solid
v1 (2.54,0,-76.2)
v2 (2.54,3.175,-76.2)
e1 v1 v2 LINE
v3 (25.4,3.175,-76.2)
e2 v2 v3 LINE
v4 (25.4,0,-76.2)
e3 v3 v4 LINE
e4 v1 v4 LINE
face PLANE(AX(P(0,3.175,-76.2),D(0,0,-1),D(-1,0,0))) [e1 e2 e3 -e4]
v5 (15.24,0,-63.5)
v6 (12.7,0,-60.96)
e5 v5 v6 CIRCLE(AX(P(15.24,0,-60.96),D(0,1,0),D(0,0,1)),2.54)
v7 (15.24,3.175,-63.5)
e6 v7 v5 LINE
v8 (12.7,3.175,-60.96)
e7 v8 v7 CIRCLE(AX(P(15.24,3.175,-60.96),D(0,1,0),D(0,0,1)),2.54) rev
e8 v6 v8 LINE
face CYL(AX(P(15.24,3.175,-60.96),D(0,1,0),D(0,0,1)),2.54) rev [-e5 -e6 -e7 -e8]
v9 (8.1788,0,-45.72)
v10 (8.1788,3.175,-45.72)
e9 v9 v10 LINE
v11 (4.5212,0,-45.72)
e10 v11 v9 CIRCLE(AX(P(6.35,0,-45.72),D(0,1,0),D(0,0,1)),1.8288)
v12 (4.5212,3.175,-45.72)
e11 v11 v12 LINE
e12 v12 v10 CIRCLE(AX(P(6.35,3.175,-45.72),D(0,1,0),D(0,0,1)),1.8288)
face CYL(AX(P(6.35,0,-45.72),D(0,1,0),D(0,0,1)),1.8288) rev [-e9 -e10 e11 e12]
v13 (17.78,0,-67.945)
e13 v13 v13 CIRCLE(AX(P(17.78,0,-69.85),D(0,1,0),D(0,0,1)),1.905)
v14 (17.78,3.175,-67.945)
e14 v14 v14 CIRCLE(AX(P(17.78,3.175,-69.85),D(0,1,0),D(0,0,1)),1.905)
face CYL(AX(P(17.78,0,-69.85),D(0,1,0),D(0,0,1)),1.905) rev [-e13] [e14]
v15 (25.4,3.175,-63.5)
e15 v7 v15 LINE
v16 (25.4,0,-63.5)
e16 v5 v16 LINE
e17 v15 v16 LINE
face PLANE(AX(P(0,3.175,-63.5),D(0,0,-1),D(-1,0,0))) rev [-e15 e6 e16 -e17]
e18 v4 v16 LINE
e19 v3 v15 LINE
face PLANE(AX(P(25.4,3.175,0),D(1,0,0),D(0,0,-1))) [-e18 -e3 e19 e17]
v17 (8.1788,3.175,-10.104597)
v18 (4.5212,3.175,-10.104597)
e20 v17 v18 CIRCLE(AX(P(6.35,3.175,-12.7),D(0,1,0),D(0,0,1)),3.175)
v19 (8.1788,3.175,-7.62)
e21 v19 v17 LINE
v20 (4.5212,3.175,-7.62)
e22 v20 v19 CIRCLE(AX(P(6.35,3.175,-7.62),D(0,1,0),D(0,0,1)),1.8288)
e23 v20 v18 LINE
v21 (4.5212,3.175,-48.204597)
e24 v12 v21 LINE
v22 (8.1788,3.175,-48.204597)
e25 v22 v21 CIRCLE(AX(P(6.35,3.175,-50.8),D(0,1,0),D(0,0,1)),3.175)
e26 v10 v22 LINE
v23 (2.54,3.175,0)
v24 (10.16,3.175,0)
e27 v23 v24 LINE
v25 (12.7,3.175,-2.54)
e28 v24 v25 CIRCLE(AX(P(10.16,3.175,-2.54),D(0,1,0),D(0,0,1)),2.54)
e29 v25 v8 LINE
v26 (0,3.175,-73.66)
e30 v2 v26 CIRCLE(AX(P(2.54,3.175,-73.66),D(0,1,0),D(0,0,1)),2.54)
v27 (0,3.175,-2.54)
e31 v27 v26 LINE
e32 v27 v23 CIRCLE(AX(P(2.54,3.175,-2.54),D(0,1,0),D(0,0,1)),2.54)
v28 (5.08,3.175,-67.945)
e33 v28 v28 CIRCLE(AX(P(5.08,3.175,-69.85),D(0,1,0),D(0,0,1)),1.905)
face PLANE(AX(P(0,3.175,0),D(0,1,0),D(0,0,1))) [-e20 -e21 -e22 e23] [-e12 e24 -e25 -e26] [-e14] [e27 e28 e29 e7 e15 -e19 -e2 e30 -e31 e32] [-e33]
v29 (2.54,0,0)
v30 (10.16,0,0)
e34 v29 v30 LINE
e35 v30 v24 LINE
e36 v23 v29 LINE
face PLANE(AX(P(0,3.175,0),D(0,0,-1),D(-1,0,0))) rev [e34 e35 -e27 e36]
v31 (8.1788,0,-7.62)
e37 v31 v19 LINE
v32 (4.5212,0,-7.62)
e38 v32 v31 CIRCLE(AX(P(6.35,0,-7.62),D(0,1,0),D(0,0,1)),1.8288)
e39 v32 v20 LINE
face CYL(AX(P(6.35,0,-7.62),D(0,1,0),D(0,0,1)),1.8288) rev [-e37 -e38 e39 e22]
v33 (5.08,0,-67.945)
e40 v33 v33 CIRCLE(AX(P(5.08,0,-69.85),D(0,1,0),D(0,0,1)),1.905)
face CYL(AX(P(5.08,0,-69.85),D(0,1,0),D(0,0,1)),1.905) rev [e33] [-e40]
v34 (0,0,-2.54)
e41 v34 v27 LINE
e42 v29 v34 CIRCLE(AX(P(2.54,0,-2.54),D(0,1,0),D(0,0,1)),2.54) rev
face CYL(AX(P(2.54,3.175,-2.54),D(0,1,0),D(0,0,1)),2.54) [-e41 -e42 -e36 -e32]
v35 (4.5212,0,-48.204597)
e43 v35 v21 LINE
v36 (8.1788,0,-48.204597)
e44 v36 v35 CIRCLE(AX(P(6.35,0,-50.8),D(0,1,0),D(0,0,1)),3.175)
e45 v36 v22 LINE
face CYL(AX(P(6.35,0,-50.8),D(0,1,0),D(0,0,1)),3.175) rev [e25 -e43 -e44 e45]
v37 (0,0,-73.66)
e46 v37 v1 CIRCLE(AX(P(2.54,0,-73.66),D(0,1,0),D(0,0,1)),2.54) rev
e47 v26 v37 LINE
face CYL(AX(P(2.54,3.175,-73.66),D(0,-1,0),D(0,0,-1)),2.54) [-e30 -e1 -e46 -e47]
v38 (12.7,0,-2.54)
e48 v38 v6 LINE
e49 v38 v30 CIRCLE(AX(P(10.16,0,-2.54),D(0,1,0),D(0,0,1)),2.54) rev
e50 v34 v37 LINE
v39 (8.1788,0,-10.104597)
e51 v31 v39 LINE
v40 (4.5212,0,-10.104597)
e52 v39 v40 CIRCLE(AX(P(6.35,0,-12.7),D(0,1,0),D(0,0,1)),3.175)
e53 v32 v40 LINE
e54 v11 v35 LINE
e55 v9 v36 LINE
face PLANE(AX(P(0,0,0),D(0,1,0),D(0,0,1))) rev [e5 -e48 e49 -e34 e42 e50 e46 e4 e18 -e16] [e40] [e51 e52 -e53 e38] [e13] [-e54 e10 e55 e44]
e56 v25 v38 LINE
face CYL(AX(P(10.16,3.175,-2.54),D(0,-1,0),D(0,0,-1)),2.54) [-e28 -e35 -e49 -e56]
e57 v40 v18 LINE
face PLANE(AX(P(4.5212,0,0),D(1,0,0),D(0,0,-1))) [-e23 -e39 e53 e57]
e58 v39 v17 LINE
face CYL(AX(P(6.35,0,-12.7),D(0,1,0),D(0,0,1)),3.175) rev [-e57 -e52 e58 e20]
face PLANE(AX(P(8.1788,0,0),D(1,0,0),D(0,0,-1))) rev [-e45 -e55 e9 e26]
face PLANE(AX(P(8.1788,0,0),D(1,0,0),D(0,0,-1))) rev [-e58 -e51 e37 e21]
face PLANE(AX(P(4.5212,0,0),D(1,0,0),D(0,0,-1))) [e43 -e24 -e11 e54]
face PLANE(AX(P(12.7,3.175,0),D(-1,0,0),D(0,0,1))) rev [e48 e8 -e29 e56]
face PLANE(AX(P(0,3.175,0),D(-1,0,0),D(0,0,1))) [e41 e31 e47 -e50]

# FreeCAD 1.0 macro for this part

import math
import FreeCAD as App
import Part
import Sketcher
from FreeCAD import Vector
Q = App.Units.Quantity


def edges_at(feature, points):
    """Names of the edges that pass closest to the given points."""
    edges = feature.Shape.Edges
    near = lambda p: min(range(len(edges)), key=lambda i: edges[i].distToShape(Part.Vertex(*p))[0])
    return sorted({f"Edge{near(p) + 1}" for p in points})

doc = App.newDocument("Part")
body = doc.addObject("PartDesign::Body", "Body")

sketch1 = body.newObject("Sketcher::SketchObject", "Sketch")
sketch1.AttachmentSupport = (doc.getObject("XZ_Plane"), [""])
sketch1.MapMode = "FlatFace"
sketch1.addGeometry(Part.LineSegment(Vector(0, -76, 0), Vector(0, 0, 0)), False)
sketch1.addGeometry(Part.LineSegment(Vector(0, 0, 0), Vector(13, 0, 0)), False)
sketch1.addGeometry(Part.LineSegment(Vector(13, 0, 0), Vector(13, -64, 0)), False)
sketch1.addGeometry(Part.LineSegment(Vector(13, -64, 0), Vector(25, -64, 0)), False)
sketch1.addGeometry(Part.LineSegment(Vector(25, -64, 0), Vector(25, -76, 0)), False)
sketch1.addGeometry(Part.LineSegment(Vector(25, -76, 0), Vector(0, -76, 0)), False)
sketch1.addConstraint(Sketcher.Constraint("Coincident", 0, 2, 1, 1))
sketch1.addConstraint(Sketcher.Constraint("Coincident", 1, 2, 2, 1))
sketch1.addConstraint(Sketcher.Constraint("Coincident", 2, 2, 3, 1))
sketch1.addConstraint(Sketcher.Constraint("Coincident", 3, 2, 4, 1))
sketch1.addConstraint(Sketcher.Constraint("Coincident", 4, 2, 5, 1))
sketch1.addConstraint(Sketcher.Constraint("Coincident", 5, 2, 0, 1))
sketch1.addConstraint(Sketcher.Constraint("Vertical", 0))
sketch1.addConstraint(Sketcher.Constraint("Horizontal", 1))
sketch1.addConstraint(Sketcher.Constraint("Vertical", 2))
sketch1.addConstraint(Sketcher.Constraint("Horizontal", 3))
sketch1.addConstraint(Sketcher.Constraint("Vertical", 4))
sketch1.addConstraint(Sketcher.Constraint("Horizontal", 5))
sketch1.addConstraint(Sketcher.Constraint("Coincident", 0, 2, -1, 1))
sketch1.addConstraint(Sketcher.Constraint("Equal", 1, 3))
sketch1.addConstraint(Sketcher.Constraint("Equal", 3, 4))
sketch1.addConstraint(Sketcher.Constraint("DistanceX", 5, 2, 5, 1, Q("1 in")))
sketch1.addConstraint(Sketcher.Constraint("DistanceY", 0, 1, 0, 2, Q("3 in")))
pad1 = body.newObject("PartDesign::Pad", "Pad")
pad1.Profile = sketch1
pad1.Length = Q("0.125 in")
pad1.Reversed = True

sketch2 = body.newObject("Sketcher::SketchObject", "Sketch001")
sketch2.AttachmentSupport = (doc.getObject("XZ_Plane"), [""])
sketch2.MapMode = "FlatFace"
sketch2.AttachmentOffset = App.Placement(Vector(0, 0, -0.125 * 25.4), App.Rotation())
sketch2.addGeometry(Part.LineSegment(Vector(4.5, -48.2, 0), Vector(4.5, -45.7, 0)), False)
sketch2.addGeometry(Part.ArcOfCircle(Part.Circle(Vector(6.3, -45.7, 0), Vector(0, 0, 1), 1.8), math.radians(0), math.radians(180)), False)
sketch2.addGeometry(Part.LineSegment(Vector(8.2, -45.7, 0), Vector(8.2, -48.2, 0)), False)
sketch2.addGeometry(Part.ArcOfCircle(Part.Circle(Vector(6.3, -50.8, 0), Vector(0, 0, 1), 3.2), math.radians(125), math.radians(415)), False)
sketch2.addGeometry(Part.LineSegment(Vector(4.5, -10.1, 0), Vector(4.5, -7.6, 0)), False)
sketch2.addGeometry(Part.ArcOfCircle(Part.Circle(Vector(6.3, -7.6, 0), Vector(0, 0, 1), 1.8), math.radians(0), math.radians(180)), False)
sketch2.addGeometry(Part.LineSegment(Vector(8.2, -7.6, 0), Vector(8.2, -10.1, 0)), False)
sketch2.addGeometry(Part.ArcOfCircle(Part.Circle(Vector(6.3, -12.7, 0), Vector(0, 0, 1), 3.2), math.radians(125), math.radians(415)), False)
sketch2.addGeometry(Part.Circle(Vector(17.8, -69.8, 0), Vector(0, 0, 1), 1.9), False)
sketch2.addGeometry(Part.Circle(Vector(5.1, -69.8, 0), Vector(0, 0, 1), 1.9), False)
sketch2.addConstraint(Sketcher.Constraint("Tangent", 0, 2, 1, 2))
sketch2.addConstraint(Sketcher.Constraint("Tangent", 1, 1, 2, 1))
sketch2.addConstraint(Sketcher.Constraint("Coincident", 2, 2, 3, 2))
sketch2.addConstraint(Sketcher.Constraint("Coincident", 3, 1, 0, 1))
sketch2.addConstraint(Sketcher.Constraint("Tangent", 4, 2, 5, 2))
sketch2.addConstraint(Sketcher.Constraint("Tangent", 5, 1, 6, 1))
sketch2.addConstraint(Sketcher.Constraint("Coincident", 6, 2, 7, 2))
sketch2.addConstraint(Sketcher.Constraint("Coincident", 7, 1, 4, 1))
sketch2.addConstraint(Sketcher.Constraint("Vertical", 0))
sketch2.addConstraint(Sketcher.Constraint("Vertical", 2))
sketch2.addConstraint(Sketcher.Constraint("Vertical", 4))
sketch2.addConstraint(Sketcher.Constraint("Vertical", 6))
sketch2.addConstraint(Sketcher.Constraint("Equal", 1, 5))
sketch2.addConstraint(Sketcher.Constraint("Equal", 3, 7))
sketch2.addConstraint(Sketcher.Constraint("Equal", 8, 9))
sketch2.addConstraint(Sketcher.Constraint("Horizontal", 8, 3, 9, 3))
sketch2.addConstraint(Sketcher.Constraint("Horizontal", 2, 2, 3, 1))
sketch2.addConstraint(Sketcher.Constraint("Horizontal", 6, 2, 7, 1))
sketch2.addConstraint(Sketcher.Constraint("Vertical", 3, 3, 5, 3))
sketch2.addConstraint(Sketcher.Constraint("Equal", 2, 4))
sketch2.addConstraint(Sketcher.Constraint("Diameter", 8, Q("0.15 in")))
sketch2.addConstraint(Sketcher.Constraint("DistanceY", 3, 3, -1, 1, Q("2 in")))
sketch2.addConstraint(Sketcher.Constraint("Radius", 1, Q("0.072 in")))
sketch2.addConstraint(Sketcher.Constraint("Radius", 3, Q("0.125 in")))
sketch2.addConstraint(Sketcher.Constraint("DistanceY", 1, 3, -1, 1, Q("1.8 in")))
sketch2.addConstraint(Sketcher.Constraint("DistanceY", 5, 3, -1, 1, Q("0.3 in")))
sketch2.addConstraint(Sketcher.Constraint("DistanceX", -1, 1, 8, 3, Q("0.7 in")))
sketch2.addConstraint(Sketcher.Constraint("DistanceX", -1, 1, 9, 3, Q("0.2 in")))
sketch2.addConstraint(Sketcher.Constraint("DistanceX", -1, 1, 1, 3, Q("0.25 in")))
sketch2.addConstraint(Sketcher.Constraint("DistanceY", 8, 3, -1, 1, Q("2.75 in")))
pocket1 = body.newObject("PartDesign::Pocket", "Pocket")
pocket1.Profile = sketch2
pocket1.Length = Q("0.125 in")
pocket1.Reversed = True
doc.recompute()

fillet = body.newObject("PartDesign::Fillet", "Fillet")
fillet.Base = (pocket1, edges_at(pocket1, [
    (12.7, 1.587, -63.5),
    (12.7, 1.587, 0),
    (0, 1.587, 0),
    (0, 1.587, -76.2),
]))
fillet.Radius = Q("0.1 in")

doc.recompute()
